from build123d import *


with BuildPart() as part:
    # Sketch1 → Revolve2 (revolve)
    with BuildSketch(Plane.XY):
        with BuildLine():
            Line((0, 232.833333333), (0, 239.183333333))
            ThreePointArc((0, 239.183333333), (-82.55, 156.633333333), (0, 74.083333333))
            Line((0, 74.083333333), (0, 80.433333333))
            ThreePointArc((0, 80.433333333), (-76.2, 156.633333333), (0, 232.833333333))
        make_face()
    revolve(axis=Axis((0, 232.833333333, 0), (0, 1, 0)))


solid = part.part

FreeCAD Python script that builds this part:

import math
import FreeCAD as App
import Part
import Sketcher
from FreeCAD import Vector
Q = App.Units.Quantity

doc = App.newDocument("Part")
params = doc.addObject("Spreadsheet::Sheet", "Params")
for row, (alias, value) in enumerate([
    ("sketch1_radius", "3 in"),
    ("sketch1_radius2", "3.25 in"),
    ("revolution_angle", "360 deg"),
], start=1):
    params.set(f"A{row}", alias)
    params.set(f"B{row}", "=" + value)
    params.setAlias(f"B{row}", alias)

body = doc.addObject("PartDesign::Body", "Body")

# Sketch on XY plane
sketch1 = body.newObject("Sketcher::SketchObject", "Sketch")
sketch1.AttachmentSupport = (doc.getObject("XY_Plane"), [""])
sketch1.MapMode = "FlatFace"
sketch1.addGeometry(Part.LineSegment(Vector(0, 233, 0), Vector(0, 239, 0)), False)
sketch1.addGeometry(Part.ArcOfCircle(Part.Circle(Vector(0, 157, 0), Vector(0, 0, 1), 83), math.radians(90), math.radians(270)), False)
sketch1.addGeometry(Part.LineSegment(Vector(0, 74, 0), Vector(0, 80, 0)), False)
sketch1.addGeometry(Part.ArcOfCircle(Part.Circle(Vector(0, 157, 0), Vector(0, 0, 1), 76), math.radians(90), math.radians(270)), False)
sketch1.addConstraint(Sketcher.Constraint("Coincident", 0, 2, 1, 1))
sketch1.addConstraint(Sketcher.Constraint("Coincident", 1, 2, 2, 1))
sketch1.addConstraint(Sketcher.Constraint("Coincident", 2, 2, 3, 2))
sketch1.addConstraint(Sketcher.Constraint("Coincident", 3, 1, 0, 1))
sketch1.addConstraint(Sketcher.Constraint("Vertical", 0))
sketch1.addConstraint(Sketcher.Constraint("Vertical", 2))
sketch1.addConstraint(Sketcher.Constraint("Coincident", 3, 3, 1, 3))
sketch1.addConstraint(Sketcher.Constraint("PointOnObject", 1, 3, -2))
sketch1.addConstraint(Sketcher.Constraint("PointOnObject", 0, 2, -2))
sketch1.addConstraint(Sketcher.Constraint("PointOnObject", 1, 2, -2))
sketch1.addConstraint(Sketcher.Constraint("Radius", 3, Q("3 in")))
sketch1.addConstraint(Sketcher.Constraint("Radius", 1, Q("3.25 in")))
sketch1.addConstraint(Sketcher.Constraint("DistanceY", -1, 1, 1, 3, Q("156.633333 mm")))
sketch1.setExpression("Constraints[10]", "Params.sketch1_radius")
sketch1.setExpression("Constraints[11]", "Params.sketch1_radius2")
revolution = body.newObject("PartDesign::Revolution", "Revolution")
revolution.Profile = sketch1
revolution.ReferenceAxis = (sketch1, ["V_Axis"])
revolution.setExpression("Angle", "Params.revolution_angle")

doc.recompute()
